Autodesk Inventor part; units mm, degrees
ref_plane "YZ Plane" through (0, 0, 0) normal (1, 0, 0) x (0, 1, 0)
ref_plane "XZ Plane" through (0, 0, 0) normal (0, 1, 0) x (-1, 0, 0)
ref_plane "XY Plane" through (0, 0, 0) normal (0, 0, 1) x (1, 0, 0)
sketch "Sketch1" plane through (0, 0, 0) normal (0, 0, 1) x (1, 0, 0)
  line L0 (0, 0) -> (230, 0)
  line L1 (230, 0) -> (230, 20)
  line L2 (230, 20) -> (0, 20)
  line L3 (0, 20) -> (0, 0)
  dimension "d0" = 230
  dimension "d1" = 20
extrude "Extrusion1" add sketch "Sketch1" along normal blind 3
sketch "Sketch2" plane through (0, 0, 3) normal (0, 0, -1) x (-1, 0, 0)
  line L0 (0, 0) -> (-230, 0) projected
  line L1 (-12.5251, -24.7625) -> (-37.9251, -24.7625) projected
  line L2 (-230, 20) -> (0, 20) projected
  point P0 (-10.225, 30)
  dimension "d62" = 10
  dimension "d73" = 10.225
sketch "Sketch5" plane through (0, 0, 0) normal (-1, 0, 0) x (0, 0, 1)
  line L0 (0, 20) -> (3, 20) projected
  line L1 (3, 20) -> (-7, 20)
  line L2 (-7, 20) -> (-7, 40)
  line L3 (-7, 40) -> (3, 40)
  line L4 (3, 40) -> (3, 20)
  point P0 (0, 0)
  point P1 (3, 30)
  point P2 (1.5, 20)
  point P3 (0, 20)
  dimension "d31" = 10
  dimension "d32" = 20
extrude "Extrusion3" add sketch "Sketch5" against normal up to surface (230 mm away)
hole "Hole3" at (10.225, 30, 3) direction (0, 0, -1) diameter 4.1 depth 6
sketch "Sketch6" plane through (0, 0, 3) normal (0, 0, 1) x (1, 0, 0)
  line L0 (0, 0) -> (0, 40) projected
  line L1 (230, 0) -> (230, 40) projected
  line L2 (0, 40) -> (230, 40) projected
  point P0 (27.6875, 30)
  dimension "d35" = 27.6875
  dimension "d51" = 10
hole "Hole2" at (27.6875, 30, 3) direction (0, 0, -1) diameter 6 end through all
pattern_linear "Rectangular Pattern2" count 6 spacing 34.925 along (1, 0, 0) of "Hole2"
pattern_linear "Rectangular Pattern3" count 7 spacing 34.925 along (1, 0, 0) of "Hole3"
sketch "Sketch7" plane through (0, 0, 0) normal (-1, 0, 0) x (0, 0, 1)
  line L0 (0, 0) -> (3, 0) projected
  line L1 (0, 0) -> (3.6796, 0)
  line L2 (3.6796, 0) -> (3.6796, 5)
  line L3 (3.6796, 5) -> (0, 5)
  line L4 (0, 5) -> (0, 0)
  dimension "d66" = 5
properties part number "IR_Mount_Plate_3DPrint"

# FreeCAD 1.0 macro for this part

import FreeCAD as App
import Part
import Sketcher
Q = App.Units.Quantity

doc = App.newDocument("Part")
body = doc.addObject("PartDesign::Body", "Body")

# Sketch on XY plane
sketch1 = body.newObject("Sketcher::SketchObject", "Sketch")
sketch1.AttachmentSupport = (doc.getObject("XY_Plane"), [""])
sketch1.MapMode = "FlatFace"
sketch1.addGeometry(Part.LineSegment(App.Vector(0, 20, 0), App.Vector(0, 0, 0)), False)
sketch1.addGeometry(Part.LineSegment(App.Vector(0, 0, 0), App.Vector(230, 0, 0)), False)
sketch1.addGeometry(Part.LineSegment(App.Vector(230, 0, 0), App.Vector(230, 20, 0)), False)
sketch1.addGeometry(Part.LineSegment(App.Vector(230, 20, 0), App.Vector(0, 20, 0)), False)
sketch1.addConstraint(Sketcher.Constraint("Coincident", 0, 2, 1, 1))
sketch1.addConstraint(Sketcher.Constraint("Coincident", 1, 2, 2, 1))
sketch1.addConstraint(Sketcher.Constraint("Coincident", 2, 2, 3, 1))
sketch1.addConstraint(Sketcher.Constraint("Coincident", 3, 2, 0, 1))
sketch1.addConstraint(Sketcher.Constraint("Vertical", 0))
sketch1.addConstraint(Sketcher.Constraint("Horizontal", 1))
sketch1.addConstraint(Sketcher.Constraint("Vertical", 2))
sketch1.addConstraint(Sketcher.Constraint("Horizontal", 3))
sketch1.addConstraint(Sketcher.Constraint("Coincident", 0, 2, -1, 1))
sketch1.addConstraint(Sketcher.Constraint("DistanceX", 1, 1, 1, 2, Q("230 mm")))
sketch1.addConstraint(Sketcher.Constraint("DistanceY", 0, 2, 0, 1, Q("20 mm")))
pad1 = body.newObject("PartDesign::Pad", "Pad")
pad1.Profile = sketch1
pad1.Length = 3

# Sketch on YZ plane
sketch2 = body.newObject("Sketcher::SketchObject", "Sketch001")
sketch2.AttachmentSupport = (doc.getObject("YZ_Plane"), [""])
sketch2.MapMode = "FlatFace"
sketch2.addGeometry(Part.LineSegment(App.Vector(20, -7, 0), App.Vector(20, 3, 0)), False)
sketch2.addGeometry(Part.LineSegment(App.Vector(20, 3, 0), App.Vector(40, 3, 0)), False)
sketch2.addGeometry(Part.LineSegment(App.Vector(40, 3, 0), App.Vector(40, -7, 0)), False)
sketch2.addGeometry(Part.LineSegment(App.Vector(40, -7, 0), App.Vector(20, -7, 0)), False)
sketch2.addConstraint(Sketcher.Constraint("Coincident", 0, 2, 1, 1))
sketch2.addConstraint(Sketcher.Constraint("Coincident", 1, 2, 2, 1))
sketch2.addConstraint(Sketcher.Constraint("Coincident", 2, 2, 3, 1))
sketch2.addConstraint(Sketcher.Constraint("Coincident", 3, 2, 0, 1))
sketch2.addConstraint(Sketcher.Constraint("Vertical", 0))
sketch2.addConstraint(Sketcher.Constraint("Horizontal", 1))
sketch2.addConstraint(Sketcher.Constraint("Vertical", 2))
sketch2.addConstraint(Sketcher.Constraint("Horizontal", 3))
sketch2.addConstraint(Sketcher.Constraint("DistanceX", 1, 1, 1, 2, Q("20 mm")))
sketch2.addConstraint(Sketcher.Constraint("DistanceY", 0, 1, 0, 2, Q("10 mm")))
sketch2.addConstraint(Sketcher.Constraint("DistanceX", -1, 1, 0, 2, Q("20 mm")))
sketch2.addConstraint(Sketcher.Constraint("DistanceY", -1, 1, 0, 2, Q("3 mm")))
pad2 = body.newObject("PartDesign::Pad", "Pad001")
pad2.Profile = sketch2
pad2.Length = 230

# Sketch on XY plane
sketch3 = body.newObject("Sketcher::SketchObject", "Sketch002")
sketch3.AttachmentSupport = (doc.getObject("XY_Plane"), [""])
sketch3.MapMode = "FlatFace"
sketch3.AttachmentOffset = App.Placement(App.Vector(0, 0, 3), App.Rotation())
sketch3.addGeometry(Part.Circle(App.Vector(10.225, 30, 0), App.Vector(0, 0, 1), 2.05), False)
sketch3.addConstraint(Sketcher.Constraint("Diameter", 0, Q("4.1 mm")))
sketch3.addConstraint(Sketcher.Constraint("DistanceY", -1, 1, 0, 3, Q("30 mm")))
sketch3.addConstraint(Sketcher.Constraint("DistanceX", -1, 1, 0, 3, Q("10.225 mm")))
doc.recompute()
hole = body.newObject("PartDesign::Hole", "Hole")
hole.Profile = sketch3
hole.ThreadType = "None"
hole.Diameter = 4.1
hole.DepthType = "Dimension"
hole.Depth = 6
hole.DrillPoint = "Flat"

# Sketch on XY plane
sketch4 = body.newObject("Sketcher::SketchObject", "Sketch003")
sketch4.AttachmentSupport = (doc.getObject("XY_Plane"), [""])
sketch4.MapMode = "FlatFace"
sketch4.AttachmentOffset = App.Placement(App.Vector(0, 0, 3), App.Rotation())
sketch4.addGeometry(Part.Circle(App.Vector(27.6875, 30, 0), App.Vector(0, 0, 1), 3), False)
sketch4.addConstraint(Sketcher.Constraint("Diameter", 0, Q("6 mm")))
sketch4.addConstraint(Sketcher.Constraint("DistanceY", -1, 1, 0, 3, Q("30 mm")))
sketch4.addConstraint(Sketcher.Constraint("DistanceX", -1, 1, 0, 3, Q("27.6875 mm")))
doc.recompute()
hole2 = body.newObject("PartDesign::Hole", "Hole001")
hole2.Profile = sketch4
hole2.ThreadType = "None"
hole2.Diameter = 6
hole2.DepthType = "ThroughAll"
doc.recompute()

linearpattern = body.newObject("PartDesign::LinearPattern", "LinearPattern")
linearpattern.Originals = [hole2]
linearpattern.Direction = (doc.getObject("X_Axis"), [""])
linearpattern.Mode = "offset"
linearpattern.Offset = 34.925
linearpattern.Occurrences = 6
body.Tip = linearpattern
doc.recompute()

linearpattern2 = body.newObject("PartDesign::LinearPattern", "LinearPattern001")
linearpattern2.Originals = [hole]
linearpattern2.Direction = (doc.getObject("X_Axis"), [""])
linearpattern2.Mode = "offset"
linearpattern2.Offset = 34.925
linearpattern2.Occurrences = 7
body.Tip = linearpattern2

doc.recompute()
